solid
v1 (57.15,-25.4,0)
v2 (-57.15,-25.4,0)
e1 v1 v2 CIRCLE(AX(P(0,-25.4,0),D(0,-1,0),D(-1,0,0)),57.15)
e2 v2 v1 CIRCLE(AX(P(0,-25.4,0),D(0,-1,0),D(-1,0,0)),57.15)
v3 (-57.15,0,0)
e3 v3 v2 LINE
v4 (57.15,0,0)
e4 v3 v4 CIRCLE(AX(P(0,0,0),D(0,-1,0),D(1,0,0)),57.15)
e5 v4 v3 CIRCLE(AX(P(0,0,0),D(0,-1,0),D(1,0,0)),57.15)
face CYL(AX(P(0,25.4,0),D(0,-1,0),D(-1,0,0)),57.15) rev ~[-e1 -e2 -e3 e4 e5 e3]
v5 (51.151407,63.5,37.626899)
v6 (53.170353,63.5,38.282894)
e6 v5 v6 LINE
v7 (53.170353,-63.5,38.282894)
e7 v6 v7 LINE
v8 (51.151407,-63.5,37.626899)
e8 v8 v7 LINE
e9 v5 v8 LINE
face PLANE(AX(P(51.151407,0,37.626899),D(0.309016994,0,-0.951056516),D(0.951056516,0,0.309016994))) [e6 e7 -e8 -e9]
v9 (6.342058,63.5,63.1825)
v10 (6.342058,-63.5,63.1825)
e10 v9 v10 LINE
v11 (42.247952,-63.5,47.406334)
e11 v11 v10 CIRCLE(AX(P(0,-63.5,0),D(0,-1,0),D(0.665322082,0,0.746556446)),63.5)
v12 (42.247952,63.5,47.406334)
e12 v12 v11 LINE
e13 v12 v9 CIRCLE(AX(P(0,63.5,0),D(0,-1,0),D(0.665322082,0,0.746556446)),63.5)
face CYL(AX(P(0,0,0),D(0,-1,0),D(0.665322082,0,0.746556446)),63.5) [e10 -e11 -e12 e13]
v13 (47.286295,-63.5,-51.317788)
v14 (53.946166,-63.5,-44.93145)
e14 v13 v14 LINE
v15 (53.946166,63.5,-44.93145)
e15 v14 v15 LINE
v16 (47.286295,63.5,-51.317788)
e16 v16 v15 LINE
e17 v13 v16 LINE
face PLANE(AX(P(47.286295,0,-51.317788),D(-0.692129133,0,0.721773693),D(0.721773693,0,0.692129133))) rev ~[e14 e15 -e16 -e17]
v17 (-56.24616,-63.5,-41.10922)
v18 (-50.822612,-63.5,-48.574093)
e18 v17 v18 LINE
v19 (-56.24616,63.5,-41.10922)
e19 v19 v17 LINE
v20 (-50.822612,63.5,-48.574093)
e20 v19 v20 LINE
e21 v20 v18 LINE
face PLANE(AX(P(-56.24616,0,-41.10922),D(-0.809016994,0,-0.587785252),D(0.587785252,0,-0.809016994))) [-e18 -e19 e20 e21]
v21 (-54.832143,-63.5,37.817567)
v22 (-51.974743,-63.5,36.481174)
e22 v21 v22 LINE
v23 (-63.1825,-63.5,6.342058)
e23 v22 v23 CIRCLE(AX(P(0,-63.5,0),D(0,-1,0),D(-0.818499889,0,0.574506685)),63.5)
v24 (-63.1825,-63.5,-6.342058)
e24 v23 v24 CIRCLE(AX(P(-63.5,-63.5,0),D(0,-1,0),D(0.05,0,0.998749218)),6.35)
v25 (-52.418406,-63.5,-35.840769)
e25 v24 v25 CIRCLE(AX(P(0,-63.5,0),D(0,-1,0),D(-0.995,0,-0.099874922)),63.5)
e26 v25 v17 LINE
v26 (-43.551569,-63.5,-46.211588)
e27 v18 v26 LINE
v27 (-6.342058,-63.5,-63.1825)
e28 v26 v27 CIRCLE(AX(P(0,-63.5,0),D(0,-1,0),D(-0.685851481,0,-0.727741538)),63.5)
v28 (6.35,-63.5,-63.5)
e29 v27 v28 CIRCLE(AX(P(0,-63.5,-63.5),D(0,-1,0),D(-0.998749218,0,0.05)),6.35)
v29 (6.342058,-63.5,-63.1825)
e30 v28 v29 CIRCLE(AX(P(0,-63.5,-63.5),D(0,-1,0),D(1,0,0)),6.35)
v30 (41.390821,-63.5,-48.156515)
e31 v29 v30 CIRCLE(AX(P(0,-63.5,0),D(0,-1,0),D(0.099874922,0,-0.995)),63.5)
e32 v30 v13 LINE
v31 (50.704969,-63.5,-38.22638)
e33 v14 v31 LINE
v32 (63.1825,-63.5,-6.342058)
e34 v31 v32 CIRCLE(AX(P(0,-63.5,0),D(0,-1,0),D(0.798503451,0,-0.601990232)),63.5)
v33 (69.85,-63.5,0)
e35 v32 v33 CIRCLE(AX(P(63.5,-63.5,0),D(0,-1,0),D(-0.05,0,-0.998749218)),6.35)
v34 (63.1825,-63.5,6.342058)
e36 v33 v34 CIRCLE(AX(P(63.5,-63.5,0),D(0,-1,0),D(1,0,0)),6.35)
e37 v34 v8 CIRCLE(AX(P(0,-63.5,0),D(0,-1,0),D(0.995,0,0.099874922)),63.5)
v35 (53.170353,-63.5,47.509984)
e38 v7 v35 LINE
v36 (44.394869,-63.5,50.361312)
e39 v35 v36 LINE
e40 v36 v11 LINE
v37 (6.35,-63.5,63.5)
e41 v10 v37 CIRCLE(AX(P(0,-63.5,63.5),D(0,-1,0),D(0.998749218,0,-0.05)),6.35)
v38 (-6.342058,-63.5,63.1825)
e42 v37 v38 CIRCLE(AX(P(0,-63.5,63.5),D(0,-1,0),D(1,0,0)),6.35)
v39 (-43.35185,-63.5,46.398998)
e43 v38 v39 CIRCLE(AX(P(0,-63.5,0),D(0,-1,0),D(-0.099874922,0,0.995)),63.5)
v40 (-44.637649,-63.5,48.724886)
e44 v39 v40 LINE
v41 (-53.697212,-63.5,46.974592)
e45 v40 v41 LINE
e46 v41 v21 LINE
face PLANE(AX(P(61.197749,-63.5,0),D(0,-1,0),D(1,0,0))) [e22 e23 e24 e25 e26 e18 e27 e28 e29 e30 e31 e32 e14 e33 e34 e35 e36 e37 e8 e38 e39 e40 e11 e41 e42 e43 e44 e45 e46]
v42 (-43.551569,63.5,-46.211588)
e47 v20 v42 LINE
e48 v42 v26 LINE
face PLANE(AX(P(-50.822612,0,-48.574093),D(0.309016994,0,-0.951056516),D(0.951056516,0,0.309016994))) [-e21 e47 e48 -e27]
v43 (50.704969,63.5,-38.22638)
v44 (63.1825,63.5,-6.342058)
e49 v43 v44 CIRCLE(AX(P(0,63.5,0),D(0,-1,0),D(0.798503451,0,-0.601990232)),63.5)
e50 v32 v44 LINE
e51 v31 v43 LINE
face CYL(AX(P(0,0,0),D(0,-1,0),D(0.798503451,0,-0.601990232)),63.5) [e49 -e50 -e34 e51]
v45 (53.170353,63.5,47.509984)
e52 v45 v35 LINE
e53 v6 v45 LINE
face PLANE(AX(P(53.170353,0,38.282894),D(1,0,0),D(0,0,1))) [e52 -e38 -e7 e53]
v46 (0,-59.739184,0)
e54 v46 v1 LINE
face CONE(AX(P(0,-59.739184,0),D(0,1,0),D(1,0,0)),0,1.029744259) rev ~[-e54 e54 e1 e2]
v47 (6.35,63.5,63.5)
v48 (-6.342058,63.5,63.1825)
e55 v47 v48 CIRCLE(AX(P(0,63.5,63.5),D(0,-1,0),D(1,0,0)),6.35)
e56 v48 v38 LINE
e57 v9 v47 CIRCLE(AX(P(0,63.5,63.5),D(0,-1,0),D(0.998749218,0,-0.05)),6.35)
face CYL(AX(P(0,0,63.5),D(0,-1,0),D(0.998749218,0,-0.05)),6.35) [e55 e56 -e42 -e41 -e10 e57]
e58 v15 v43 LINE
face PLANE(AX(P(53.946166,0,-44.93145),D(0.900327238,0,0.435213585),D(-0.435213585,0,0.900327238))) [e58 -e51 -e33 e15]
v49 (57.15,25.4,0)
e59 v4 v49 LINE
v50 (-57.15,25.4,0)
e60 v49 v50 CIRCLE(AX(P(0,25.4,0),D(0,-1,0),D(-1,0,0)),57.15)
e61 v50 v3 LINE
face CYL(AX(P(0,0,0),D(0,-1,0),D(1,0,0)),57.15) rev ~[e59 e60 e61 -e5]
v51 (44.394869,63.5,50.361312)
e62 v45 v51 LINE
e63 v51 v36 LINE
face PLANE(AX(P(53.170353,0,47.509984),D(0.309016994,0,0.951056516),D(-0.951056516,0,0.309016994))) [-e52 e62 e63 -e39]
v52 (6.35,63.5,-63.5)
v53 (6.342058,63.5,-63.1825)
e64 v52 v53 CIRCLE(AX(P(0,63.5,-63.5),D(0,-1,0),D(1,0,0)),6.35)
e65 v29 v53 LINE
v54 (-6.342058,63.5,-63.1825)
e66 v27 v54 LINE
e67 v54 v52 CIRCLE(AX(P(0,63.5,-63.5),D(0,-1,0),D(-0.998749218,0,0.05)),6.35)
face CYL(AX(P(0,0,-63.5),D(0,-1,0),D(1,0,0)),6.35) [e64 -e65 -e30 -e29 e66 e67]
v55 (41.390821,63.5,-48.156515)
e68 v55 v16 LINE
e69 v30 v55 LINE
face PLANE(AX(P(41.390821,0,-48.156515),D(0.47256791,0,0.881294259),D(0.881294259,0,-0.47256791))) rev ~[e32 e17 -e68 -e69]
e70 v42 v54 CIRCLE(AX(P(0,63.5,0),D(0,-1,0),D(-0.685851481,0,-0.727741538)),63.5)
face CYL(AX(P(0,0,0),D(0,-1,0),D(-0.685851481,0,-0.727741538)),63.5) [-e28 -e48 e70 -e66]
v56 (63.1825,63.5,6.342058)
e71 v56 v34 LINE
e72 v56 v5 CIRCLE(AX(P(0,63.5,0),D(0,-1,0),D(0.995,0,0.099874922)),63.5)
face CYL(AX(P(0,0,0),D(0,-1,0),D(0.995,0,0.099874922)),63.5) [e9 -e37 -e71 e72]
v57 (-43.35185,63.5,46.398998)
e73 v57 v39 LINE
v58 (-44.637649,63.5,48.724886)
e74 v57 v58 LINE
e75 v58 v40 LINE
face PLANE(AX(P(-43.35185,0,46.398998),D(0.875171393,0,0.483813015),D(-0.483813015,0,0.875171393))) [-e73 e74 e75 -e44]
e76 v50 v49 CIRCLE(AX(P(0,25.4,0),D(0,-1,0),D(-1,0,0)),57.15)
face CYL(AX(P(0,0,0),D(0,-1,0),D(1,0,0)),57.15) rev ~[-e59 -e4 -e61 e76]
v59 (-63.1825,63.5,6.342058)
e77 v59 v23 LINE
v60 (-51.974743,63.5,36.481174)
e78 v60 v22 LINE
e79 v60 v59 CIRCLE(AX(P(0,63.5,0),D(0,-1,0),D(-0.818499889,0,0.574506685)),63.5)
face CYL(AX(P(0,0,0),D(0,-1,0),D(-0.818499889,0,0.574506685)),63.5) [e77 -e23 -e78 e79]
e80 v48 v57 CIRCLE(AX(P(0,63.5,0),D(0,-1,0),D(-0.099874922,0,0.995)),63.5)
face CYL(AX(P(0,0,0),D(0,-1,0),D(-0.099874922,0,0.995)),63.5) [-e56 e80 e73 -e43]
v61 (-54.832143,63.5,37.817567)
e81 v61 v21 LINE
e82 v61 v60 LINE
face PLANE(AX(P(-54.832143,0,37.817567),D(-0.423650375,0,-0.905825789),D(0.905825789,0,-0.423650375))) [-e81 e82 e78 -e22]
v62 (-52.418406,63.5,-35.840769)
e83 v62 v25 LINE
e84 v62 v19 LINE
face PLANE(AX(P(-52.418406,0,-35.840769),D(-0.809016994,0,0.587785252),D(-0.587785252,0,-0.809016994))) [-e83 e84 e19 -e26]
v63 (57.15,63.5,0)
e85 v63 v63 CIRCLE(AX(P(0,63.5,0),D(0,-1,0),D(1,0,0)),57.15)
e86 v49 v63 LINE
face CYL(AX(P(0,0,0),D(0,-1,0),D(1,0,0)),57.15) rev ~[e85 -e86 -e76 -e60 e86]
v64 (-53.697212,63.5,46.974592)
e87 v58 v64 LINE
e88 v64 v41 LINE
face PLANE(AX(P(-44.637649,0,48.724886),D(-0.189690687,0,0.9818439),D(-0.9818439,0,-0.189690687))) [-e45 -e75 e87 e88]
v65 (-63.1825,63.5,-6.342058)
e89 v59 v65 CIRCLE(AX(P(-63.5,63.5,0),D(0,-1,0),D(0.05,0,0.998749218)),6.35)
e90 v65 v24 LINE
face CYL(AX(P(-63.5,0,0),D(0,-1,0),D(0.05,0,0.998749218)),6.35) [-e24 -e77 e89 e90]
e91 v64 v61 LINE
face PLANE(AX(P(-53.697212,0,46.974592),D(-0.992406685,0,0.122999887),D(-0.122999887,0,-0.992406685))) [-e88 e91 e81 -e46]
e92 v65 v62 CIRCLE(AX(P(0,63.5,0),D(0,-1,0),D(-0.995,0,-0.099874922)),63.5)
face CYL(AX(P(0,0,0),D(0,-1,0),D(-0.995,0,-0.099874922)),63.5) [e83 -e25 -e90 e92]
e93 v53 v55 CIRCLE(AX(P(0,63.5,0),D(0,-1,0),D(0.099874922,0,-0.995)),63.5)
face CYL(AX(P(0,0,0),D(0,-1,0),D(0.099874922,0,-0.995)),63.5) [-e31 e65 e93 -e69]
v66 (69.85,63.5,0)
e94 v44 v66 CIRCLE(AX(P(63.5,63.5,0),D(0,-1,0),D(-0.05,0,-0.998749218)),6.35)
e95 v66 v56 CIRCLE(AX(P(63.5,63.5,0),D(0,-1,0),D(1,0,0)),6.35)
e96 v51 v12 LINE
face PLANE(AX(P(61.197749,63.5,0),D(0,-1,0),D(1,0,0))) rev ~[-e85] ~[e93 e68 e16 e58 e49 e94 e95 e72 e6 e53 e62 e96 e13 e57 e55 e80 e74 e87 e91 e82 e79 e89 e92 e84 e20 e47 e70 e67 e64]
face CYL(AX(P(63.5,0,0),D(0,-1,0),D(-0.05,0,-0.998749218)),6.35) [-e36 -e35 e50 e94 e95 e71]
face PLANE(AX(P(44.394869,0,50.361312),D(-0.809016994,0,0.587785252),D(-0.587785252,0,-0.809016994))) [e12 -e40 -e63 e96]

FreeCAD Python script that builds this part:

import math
import FreeCAD as App
import Part
import Sketcher
from FreeCAD import Vector
Q = App.Units.Quantity

doc = App.newDocument("Part")
body = doc.addObject("PartDesign::Body", "Body")

# Sketch on XZ plane
sketch1 = body.newObject("Sketcher::SketchObject", "Sketch")
sketch1.AttachmentSupport = (doc.getObject("XZ_Plane"), [""])
sketch1.MapMode = "FlatFace"
sketch1.addGeometry(Part.ArcOfCircle(Part.Circle(Vector(63.5, 0, 0), Vector(0, 0, 1), 6.35), math.radians(-92.865984), math.radians(0)), False)
sketch1.addGeometry(Part.ArcOfCircle(Part.Circle(Vector(63.5, 0, 0), Vector(0, 0, 1), 6.35), math.radians(0), math.radians(92.865984)), False)
sketch1.addGeometry(Part.ArcOfCircle(Part.Circle(Vector(0, 0, 0), Vector(0, 0, 1), 63.5), math.radians(5.731968), math.radians(36.338144)), False)
sketch1.addGeometry(Part.LineSegment(Vector(51.151407, 37.626899, 0), Vector(53.170353, 38.282894, 0)), False)
sketch1.addGeometry(Part.LineSegment(Vector(53.170353, 38.282894, 0), Vector(53.170353, 47.509984, 0)), False)
sketch1.addGeometry(Part.LineSegment(Vector(53.170353, 47.509984, 0), Vector(44.394869, 50.361312, 0)), False)
sketch1.addGeometry(Part.LineSegment(Vector(44.394869, 50.361312, 0), Vector(42.247952, 47.406334, 0)), False)
sketch1.addGeometry(Part.ArcOfCircle(Part.Circle(Vector(0, 0, 0), Vector(0, 0, 1), 63.5), math.radians(48.292961), math.radians(84.268032)), False)
sketch1.addGeometry(Part.ArcOfCircle(Part.Circle(Vector(0, 63.5, 0), Vector(0, 0, 1), 6.35), math.radians(-2.865984), math.radians(0)), False)
sketch1.addGeometry(Part.ArcOfCircle(Part.Circle(Vector(0, 63.5, 0), Vector(0, 0, 1), 6.35), math.radians(0), math.radians(182.865984)), False)
sketch1.addGeometry(Part.ArcOfCircle(Part.Circle(Vector(0, 0, 0), Vector(0, 0, 1), 63.5), math.radians(95.731968), math.radians(133.055487)), False)
sketch1.addGeometry(Part.LineSegment(Vector(-43.35185, 46.398998, 0), Vector(-44.637649, 48.724886, 0)), False)
sketch1.addGeometry(Part.LineSegment(Vector(-44.637649, 48.724886, 0), Vector(-53.697212, 46.974592, 0)), False)
sketch1.addGeometry(Part.LineSegment(Vector(-53.697212, 46.974592, 0), Vector(-54.832143, 37.817567, 0)), False)
sketch1.addGeometry(Part.LineSegment(Vector(-54.832143, 37.817567, 0), Vector(-51.974743, 36.481174, 0)), False)
sketch1.addGeometry(Part.ArcOfCircle(Part.Circle(Vector(0, 0, 0), Vector(0, 0, 1), 63.5), math.radians(144.934908), math.radians(174.268032)), False)
sketch1.addGeometry(Part.ArcOfCircle(Part.Circle(Vector(-63.5, 0, 0), Vector(0, 0, 1), 6.35), math.radians(87.134016), math.radians(272.865984)), False)
sketch1.addGeometry(Part.ArcOfCircle(Part.Circle(Vector(0, 0, 0), Vector(0, 0, 1), 63.5), math.radians(-174.268032), math.radians(-145.637867)), False)
sketch1.addGeometry(Part.LineSegment(Vector(-52.418406, -35.840769, 0), Vector(-56.24616, -41.10922, 0)), False)
sketch1.addGeometry(Part.LineSegment(Vector(-56.24616, -41.10922, 0), Vector(-50.822612, -48.574093, 0)), False)
sketch1.addGeometry(Part.LineSegment(Vector(-50.822612, -48.574093, 0), Vector(-43.551569, -46.211588, 0)), False)
sketch1.addGeometry(Part.ArcOfCircle(Part.Circle(Vector(0, 0, 0), Vector(0, 0, 1), 63.5), math.radians(-133.302608), math.radians(-95.731968)), False)
sketch1.addGeometry(Part.ArcOfCircle(Part.Circle(Vector(0, -63.5, 0), Vector(0, 0, 1), 6.35), math.radians(177.134016), math.radians(360)), False)
sketch1.addGeometry(Part.ArcOfCircle(Part.Circle(Vector(0, -63.5, 0), Vector(0, 0, 1), 6.35), math.radians(0), math.radians(2.865984)), False)
sketch1.addGeometry(Part.ArcOfCircle(Part.Circle(Vector(0, 0, 0), Vector(0, 0, 1), 63.5), math.radians(-84.268032), math.radians(-49.320738)), False)
sketch1.addGeometry(Part.LineSegment(Vector(41.390821, -48.156515, 0), Vector(47.286295, -51.317788, 0)), False)
sketch1.addGeometry(Part.LineSegment(Vector(47.286295, -51.317788, 0), Vector(53.946166, -44.93145, 0)), False)
sketch1.addGeometry(Part.LineSegment(Vector(53.946166, -44.93145, 0), Vector(50.704969, -38.22638, 0)), False)
sketch1.addGeometry(Part.ArcOfCircle(Part.Circle(Vector(0, 0, 0), Vector(0, 0, 1), 63.5), math.radians(-37.012571), math.radians(-5.731968)), False)
sketch1.addConstraint(Sketcher.Constraint("Tangent", 0, 2, 1, 1))
sketch1.addConstraint(Sketcher.Constraint("Coincident", 1, 2, 2, 1))
sketch1.addConstraint(Sketcher.Constraint("Coincident", 2, 2, 3, 1))
sketch1.addConstraint(Sketcher.Constraint("Coincident", 3, 2, 4, 1))
sketch1.addConstraint(Sketcher.Constraint("Coincident", 4, 2, 5, 1))
sketch1.addConstraint(Sketcher.Constraint("Coincident", 5, 2, 6, 1))
sketch1.addConstraint(Sketcher.Constraint("Coincident", 6, 2, 7, 1))
sketch1.addConstraint(Sketcher.Constraint("Coincident", 7, 2, 8, 1))
sketch1.addConstraint(Sketcher.Constraint("Tangent", 8, 2, 9, 1))
sketch1.addConstraint(Sketcher.Constraint("Coincident", 9, 2, 10, 1))
sketch1.addConstraint(Sketcher.Constraint("Coincident", 10, 2, 11, 1))
sketch1.addConstraint(Sketcher.Constraint("Coincident", 11, 2, 12, 1))
sketch1.addConstraint(Sketcher.Constraint("Coincident", 12, 2, 13, 1))
sketch1.addConstraint(Sketcher.Constraint("Coincident", 13, 2, 14, 1))
sketch1.addConstraint(Sketcher.Constraint("Coincident", 14, 2, 15, 1))
sketch1.addConstraint(Sketcher.Constraint("Coincident", 15, 2, 16, 1))
sketch1.addConstraint(Sketcher.Constraint("Coincident", 16, 2, 17, 1))
sketch1.addConstraint(Sketcher.Constraint("Coincident", 17, 2, 18, 1))
sketch1.addConstraint(Sketcher.Constraint("Coincident", 18, 2, 19, 1))
sketch1.addConstraint(Sketcher.Constraint("Coincident", 19, 2, 20, 1))
sketch1.addConstraint(Sketcher.Constraint("Coincident", 20, 2, 21, 1))
sketch1.addConstraint(Sketcher.Constraint("Coincident", 21, 2, 22, 1))
sketch1.addConstraint(Sketcher.Constraint("Tangent", 22, 2, 23, 1))
sketch1.addConstraint(Sketcher.Constraint("Coincident", 23, 2, 24, 1))
sketch1.addConstraint(Sketcher.Constraint("Coincident", 24, 2, 25, 1))
sketch1.addConstraint(Sketcher.Constraint("Coincident", 25, 2, 26, 1))
sketch1.addConstraint(Sketcher.Constraint("Coincident", 26, 2, 27, 1))
sketch1.addConstraint(Sketcher.Constraint("Coincident", 27, 2, 28, 1))
sketch1.addConstraint(Sketcher.Constraint("Coincident", 28, 2, 0, 1))
sketch1.addConstraint(Sketcher.Constraint("Vertical", 4))
sketch1.addConstraint(Sketcher.Constraint("Coincident", 2, 3, -1, 1))
sketch1.addConstraint(Sketcher.Constraint("Coincident", 7, 3, -1, 1))
sketch1.addConstraint(Sketcher.Constraint("Coincident", 10, 3, -1, 1))
sketch1.addConstraint(Sketcher.Constraint("Coincident", 15, 3, -1, 1))
sketch1.addConstraint(Sketcher.Constraint("Coincident", 17, 3, -1, 1))
sketch1.addConstraint(Sketcher.Constraint("Coincident", 21, 3, -1, 1))
sketch1.addConstraint(Sketcher.Constraint("Coincident", 24, 3, -1, 1))
sketch1.addConstraint(Sketcher.Constraint("Coincident", 28, 3, -1, 1))
sketch1.addConstraint(Sketcher.Constraint("Equal", 0, 1))
sketch1.addConstraint(Sketcher.Constraint("Equal", 2, 7))
sketch1.addConstraint(Sketcher.Constraint("Equal", 1, 8))
sketch1.addConstraint(Sketcher.Constraint("Equal", 8, 9))
sketch1.addConstraint(Sketcher.Constraint("Equal", 7, 10))
sketch1.addConstraint(Sketcher.Constraint("Equal", 10, 15))
sketch1.addConstraint(Sketcher.Constraint("Equal", 9, 16))
sketch1.addConstraint(Sketcher.Constraint("Equal", 15, 17))
sketch1.addConstraint(Sketcher.Constraint("Equal", 17, 21))
sketch1.addConstraint(Sketcher.Constraint("Equal", 16, 22))
sketch1.addConstraint(Sketcher.Constraint("Equal", 22, 23))
sketch1.addConstraint(Sketcher.Constraint("Equal", 21, 24))
sketch1.addConstraint(Sketcher.Constraint("Equal", 24, 28))
sketch1.addConstraint(Sketcher.Constraint("Symmetric", 0, 3, 16, 3, -1, 1))
sketch1.addConstraint(Sketcher.Constraint("Symmetric", 8, 3, 22, 3, -1, 1))
sketch1.addConstraint(Sketcher.Constraint("Symmetric", 8, 2, 22, 2, -1))
sketch1.addConstraint(Sketcher.Constraint("PointOnObject", 0, 3, -1))
sketch1.addConstraint(Sketcher.Constraint("PointOnObject", 0, 2, -1))
sketch1.addConstraint(Sketcher.Constraint("Parallel", 6, 18))
sketch1.addConstraint(Sketcher.Constraint("Parallel", 3, 20))
sketch1.addConstraint(Sketcher.Constraint("Horizontal", 9, 3, 8, 2))
sketch1.addConstraint(Sketcher.Constraint("Equal", 5, 12))
sketch1.addConstraint(Sketcher.Constraint("Equal", 12, 13))
sketch1.addConstraint(Sketcher.Constraint("Equal", 13, 19))
sketch1.addConstraint(Sketcher.Constraint("Equal", 19, 26))
sketch1.addConstraint(Sketcher.Constraint("Radius", 2, Q("2.5 in")))
sketch1.addConstraint(Sketcher.Constraint("Radius", 0, Q("0.25 in")))
sketch1.addConstraint(Sketcher.Constraint("Angle", 3, Q("18 deg")))
sketch1.addConstraint(Sketcher.Constraint("Angle", 5, Q("162 deg")))
sketch1.addConstraint(Sketcher.Constraint("Angle", 6, Q("-126 deg")))
sketch1.addConstraint(Sketcher.Constraint("Angle", 19, Q("-54 deg")))
sketch1.addConstraint(Sketcher.Constraint("DistanceX", -1, 1, 0, 3, Q("2.5 in")))
sketch1.addConstraint(Sketcher.Constraint("DistanceY", -1, 1, 8, 3, Q("2.5 in")))
sketch1.addConstraint(Sketcher.Constraint("DistanceY", 20, 2, 17, 2, Q("0.4083 in")))
sketch1.addConstraint(Sketcher.Constraint("DistanceY", 4, 1, 4, 2, 9.22709))
sketch1.addConstraint(Sketcher.Constraint("DistanceY", -1, 1, 2, 2, 37.626899))
sketch1.addConstraint(Sketcher.Constraint("DistanceY", -1, 1, 10, 2, 46.398998))
sketch1.addConstraint(Sketcher.Constraint("DistanceX", 6, 2, 4, 2, 10.922401))
sketch1.addConstraint(Sketcher.Constraint("DistanceX", 11, 2, 10, 2, 1.285799))
sketch1.addConstraint(Sketcher.Constraint("DistanceX", 13, 2, 14, 2, 2.8574))
sketch1.addConstraint(Sketcher.Constraint("Distance", 5, 9.22709))
sketch1.addConstraint(Sketcher.Constraint("Distance", 14, 3.154469))
sketch1.addConstraint(Sketcher.Constraint("Distance", 27, 7.44737))
sketch1.addConstraint(Sketcher.Constraint("DistanceX", 12, 2, -1, 1, 53.697212))
sketch1.addConstraint(Sketcher.Constraint("DistanceY", 17, 2, -1, 1, 35.840769))
sketch1.addConstraint(Sketcher.Constraint("DistanceX", -1, 1, 24, 2, 41.390821))
sketch1.addConstraint(Sketcher.Constraint("DistanceY", 25, 2, -1, 1, 51.317788))
sketch1.addConstraint(Sketcher.Constraint("DistanceY", 26, 2, -1, 1, 44.93145))
sketch1.addConstraint(Sketcher.Constraint("DistanceX", -1, 1, 27, 2, 50.704969))
sketch1.addConstraint(Sketcher.Constraint("DistanceX", 13, 2, 12, 2, 1.134931))
pad1 = body.newObject("PartDesign::Pad", "Pad")
pad1.Profile = sketch1
pad1.Length = Q("5 in")
pad1.Midplane = True

# Sketch on XZ plane
sketch2 = body.newObject("Sketcher::SketchObject", "Sketch001")
sketch2.AttachmentSupport = (doc.getObject("XZ_Plane"), [""])
sketch2.MapMode = "FlatFace"
sketch2.addGeometry(Part.Circle(Vector(0, 0, 0), Vector(0, 0, 1), 57.15), False)
sketch2.addConstraint(Sketcher.Constraint("Coincident", 0, 3, -1, 1))
sketch2.addConstraint(Sketcher.Constraint("Diameter", 0, Q("4.5 in")))
pocket1 = body.newObject("PartDesign::Pocket", "Pocket")
pocket1.Profile = sketch2
pocket1.Type = "ThroughAll"

# Sketch on XZ plane
sketch3 = body.newObject("Sketcher::SketchObject", "Sketch002")
sketch3.AttachmentSupport = (doc.getObject("XZ_Plane"), [""])
sketch3.MapMode = "FlatFace"
sketch3.addGeometry(Part.Circle(Vector(0, 0, 0), Vector(0, 0, 1), 57.15), False)
sketch3.addConstraint(Sketcher.Constraint("Coincident", 0, 3, -1, 1))
sketch3.addConstraint(Sketcher.Constraint("Diameter", 0, Q("4.5 in")))
doc.recompute()
hole = body.newObject("PartDesign::Hole", "Hole")
hole.Profile = sketch3
hole.ThreadType = "None"
hole.Diameter = Q("4.5 in")
hole.DepthType = "Dimension"
hole.Depth = Q("1 in")
hole.DrillPoint = "Angled"
hole.DrillPointAngle = 118
hole.Reversed = True

doc.recompute()
